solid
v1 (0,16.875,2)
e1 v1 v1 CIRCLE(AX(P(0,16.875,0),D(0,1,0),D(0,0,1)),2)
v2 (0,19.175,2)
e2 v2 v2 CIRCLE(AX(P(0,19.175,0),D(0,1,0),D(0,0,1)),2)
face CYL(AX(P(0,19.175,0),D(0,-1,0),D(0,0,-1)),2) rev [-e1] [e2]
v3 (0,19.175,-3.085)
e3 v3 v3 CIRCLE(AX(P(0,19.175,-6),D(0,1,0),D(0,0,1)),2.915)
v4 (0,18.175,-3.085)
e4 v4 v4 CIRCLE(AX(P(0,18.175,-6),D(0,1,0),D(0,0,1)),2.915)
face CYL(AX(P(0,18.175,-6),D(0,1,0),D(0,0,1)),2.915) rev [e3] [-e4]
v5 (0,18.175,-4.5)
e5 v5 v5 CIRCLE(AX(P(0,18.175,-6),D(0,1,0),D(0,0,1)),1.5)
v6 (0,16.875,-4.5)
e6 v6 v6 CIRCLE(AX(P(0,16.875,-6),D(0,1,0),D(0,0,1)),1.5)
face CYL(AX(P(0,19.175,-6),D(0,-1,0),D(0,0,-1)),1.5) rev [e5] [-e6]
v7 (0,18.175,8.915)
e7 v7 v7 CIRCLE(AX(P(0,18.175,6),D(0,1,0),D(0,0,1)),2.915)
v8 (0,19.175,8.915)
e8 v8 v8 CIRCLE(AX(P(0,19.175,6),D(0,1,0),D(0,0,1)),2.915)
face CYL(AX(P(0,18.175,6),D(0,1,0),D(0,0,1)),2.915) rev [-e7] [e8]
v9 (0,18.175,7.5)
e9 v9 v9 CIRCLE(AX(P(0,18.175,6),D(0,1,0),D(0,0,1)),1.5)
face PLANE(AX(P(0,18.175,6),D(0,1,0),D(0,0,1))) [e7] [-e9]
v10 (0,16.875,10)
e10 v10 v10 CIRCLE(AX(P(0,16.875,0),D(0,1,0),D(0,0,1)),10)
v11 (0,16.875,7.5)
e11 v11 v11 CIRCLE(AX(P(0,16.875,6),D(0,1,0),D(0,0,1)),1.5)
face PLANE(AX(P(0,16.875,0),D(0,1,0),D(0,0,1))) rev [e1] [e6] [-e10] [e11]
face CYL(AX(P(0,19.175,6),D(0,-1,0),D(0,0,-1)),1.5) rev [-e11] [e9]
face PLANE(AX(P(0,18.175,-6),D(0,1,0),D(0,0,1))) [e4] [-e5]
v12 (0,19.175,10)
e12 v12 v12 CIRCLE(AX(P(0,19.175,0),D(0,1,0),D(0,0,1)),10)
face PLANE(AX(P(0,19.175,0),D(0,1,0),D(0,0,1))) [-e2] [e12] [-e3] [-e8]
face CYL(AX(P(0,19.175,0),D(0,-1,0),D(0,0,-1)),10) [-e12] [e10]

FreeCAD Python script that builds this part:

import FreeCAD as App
import Part
import Sketcher

V = App.Vector
Q = App.Units.Quantity

doc = App.newDocument("Part")
params = doc.addObject("Spreadsheet::Sheet", "Params")
for row, (alias, value) in enumerate([
    ("sketch1_diameter", "20 mm"),
    ("sketch1_diameter2", "3 mm"),
    ("sketch1_diameter3", "4 mm"),
    ("pad1_length", "2.3 mm"),
    ("sketch2_diameter", "5.83 mm"),
    ("pocket1_length", "1 mm"),
], start=1):
    params.set(f"A{row}", alias)
    params.set(f"B{row}", "=" + value)
    params.setAlias(f"B{row}", alias)

body = doc.addObject("PartDesign::Body", "Body")

# Sketch on XZ plane
sketch1 = body.newObject("Sketcher::SketchObject", "Sketch")
sketch1.AttachmentSupport = (doc.getObject("XZ_Plane"), [""])
sketch1.MapMode = "FlatFace"
sketch1.AttachmentOffset = App.Placement(V(0, 0, -16.875), App.Rotation())
sketch1.addGeometry([
    Part.Circle(V(0, 0, 0), V(0, 0, 1), 10),
    Part.Circle(V(0, 6, 0), V(0, 0, 1), 1.5),
    Part.Circle(V(0, 0, 0), V(0, 0, 1), 2),
    Part.Circle(V(0, -6, 0), V(0, 0, 1), 1.5),
], False)
sketch1.addConstraint([
    Sketcher.Constraint("Coincident", 0, 3, -1, 1),
    Sketcher.Constraint("Coincident", 2, 3, -1, 1),
    Sketcher.Constraint("Equal", 1, 3),
    Sketcher.Constraint("Symmetric", 1, 3, 3, 3, -1, 1),
    Sketcher.Constraint("PointOnObject", 1, 3, -2),
    Sketcher.Constraint("Diameter", 0, Q("20 mm")),
    Sketcher.Constraint("Diameter", 1, Q("3 mm")),
    Sketcher.Constraint("Diameter", 2, Q("4 mm")),
    Sketcher.Constraint("DistanceY", -1, 1, 1, 3, Q("6 mm")),
])
sketch1.setExpression("Constraints[5]", "Params.sketch1_diameter")
sketch1.setExpression("Constraints[6]", "Params.sketch1_diameter2")
sketch1.setExpression("Constraints[7]", "Params.sketch1_diameter3")
pad1 = body.newObject("PartDesign::Pad", "Pad")
pad1.Profile = sketch1
pad1.setExpression("Length", "Params.pad1_length")
pad1.Reversed = True

# Sketch on XZ plane
sketch2 = body.newObject("Sketcher::SketchObject", "Sketch001")
sketch2.AttachmentSupport = (doc.getObject("XZ_Plane"), [""])
sketch2.MapMode = "FlatFace"
sketch2.AttachmentOffset = App.Placement(V(0, 0, -19.175), App.Rotation())
sketch2.addGeometry([
    Part.Circle(V(0, -6, 0), V(0, 0, 1), 2.915),
    Part.Circle(V(0, 6, 0), V(0, 0, 1), 2.915),
], False)
sketch2.addConstraint([
    Sketcher.Constraint("Equal", 0, 1),
    Sketcher.Constraint("Symmetric", 0, 3, 1, 3, -1, 1),
    Sketcher.Constraint("PointOnObject", 0, 3, -2),
    Sketcher.Constraint("Diameter", 0, Q("5.83 mm")),
    Sketcher.Constraint("DistanceY", 0, 3, -1, 1, Q("6 mm")),
])
sketch2.setExpression("Constraints[3]", "Params.sketch2_diameter")
pocket1 = body.newObject("PartDesign::Pocket", "Pocket")
pocket1.Profile = sketch2
pocket1.setExpression("Length", "Params.pocket1_length")
pocket1.Reversed = True

doc.recompute()
